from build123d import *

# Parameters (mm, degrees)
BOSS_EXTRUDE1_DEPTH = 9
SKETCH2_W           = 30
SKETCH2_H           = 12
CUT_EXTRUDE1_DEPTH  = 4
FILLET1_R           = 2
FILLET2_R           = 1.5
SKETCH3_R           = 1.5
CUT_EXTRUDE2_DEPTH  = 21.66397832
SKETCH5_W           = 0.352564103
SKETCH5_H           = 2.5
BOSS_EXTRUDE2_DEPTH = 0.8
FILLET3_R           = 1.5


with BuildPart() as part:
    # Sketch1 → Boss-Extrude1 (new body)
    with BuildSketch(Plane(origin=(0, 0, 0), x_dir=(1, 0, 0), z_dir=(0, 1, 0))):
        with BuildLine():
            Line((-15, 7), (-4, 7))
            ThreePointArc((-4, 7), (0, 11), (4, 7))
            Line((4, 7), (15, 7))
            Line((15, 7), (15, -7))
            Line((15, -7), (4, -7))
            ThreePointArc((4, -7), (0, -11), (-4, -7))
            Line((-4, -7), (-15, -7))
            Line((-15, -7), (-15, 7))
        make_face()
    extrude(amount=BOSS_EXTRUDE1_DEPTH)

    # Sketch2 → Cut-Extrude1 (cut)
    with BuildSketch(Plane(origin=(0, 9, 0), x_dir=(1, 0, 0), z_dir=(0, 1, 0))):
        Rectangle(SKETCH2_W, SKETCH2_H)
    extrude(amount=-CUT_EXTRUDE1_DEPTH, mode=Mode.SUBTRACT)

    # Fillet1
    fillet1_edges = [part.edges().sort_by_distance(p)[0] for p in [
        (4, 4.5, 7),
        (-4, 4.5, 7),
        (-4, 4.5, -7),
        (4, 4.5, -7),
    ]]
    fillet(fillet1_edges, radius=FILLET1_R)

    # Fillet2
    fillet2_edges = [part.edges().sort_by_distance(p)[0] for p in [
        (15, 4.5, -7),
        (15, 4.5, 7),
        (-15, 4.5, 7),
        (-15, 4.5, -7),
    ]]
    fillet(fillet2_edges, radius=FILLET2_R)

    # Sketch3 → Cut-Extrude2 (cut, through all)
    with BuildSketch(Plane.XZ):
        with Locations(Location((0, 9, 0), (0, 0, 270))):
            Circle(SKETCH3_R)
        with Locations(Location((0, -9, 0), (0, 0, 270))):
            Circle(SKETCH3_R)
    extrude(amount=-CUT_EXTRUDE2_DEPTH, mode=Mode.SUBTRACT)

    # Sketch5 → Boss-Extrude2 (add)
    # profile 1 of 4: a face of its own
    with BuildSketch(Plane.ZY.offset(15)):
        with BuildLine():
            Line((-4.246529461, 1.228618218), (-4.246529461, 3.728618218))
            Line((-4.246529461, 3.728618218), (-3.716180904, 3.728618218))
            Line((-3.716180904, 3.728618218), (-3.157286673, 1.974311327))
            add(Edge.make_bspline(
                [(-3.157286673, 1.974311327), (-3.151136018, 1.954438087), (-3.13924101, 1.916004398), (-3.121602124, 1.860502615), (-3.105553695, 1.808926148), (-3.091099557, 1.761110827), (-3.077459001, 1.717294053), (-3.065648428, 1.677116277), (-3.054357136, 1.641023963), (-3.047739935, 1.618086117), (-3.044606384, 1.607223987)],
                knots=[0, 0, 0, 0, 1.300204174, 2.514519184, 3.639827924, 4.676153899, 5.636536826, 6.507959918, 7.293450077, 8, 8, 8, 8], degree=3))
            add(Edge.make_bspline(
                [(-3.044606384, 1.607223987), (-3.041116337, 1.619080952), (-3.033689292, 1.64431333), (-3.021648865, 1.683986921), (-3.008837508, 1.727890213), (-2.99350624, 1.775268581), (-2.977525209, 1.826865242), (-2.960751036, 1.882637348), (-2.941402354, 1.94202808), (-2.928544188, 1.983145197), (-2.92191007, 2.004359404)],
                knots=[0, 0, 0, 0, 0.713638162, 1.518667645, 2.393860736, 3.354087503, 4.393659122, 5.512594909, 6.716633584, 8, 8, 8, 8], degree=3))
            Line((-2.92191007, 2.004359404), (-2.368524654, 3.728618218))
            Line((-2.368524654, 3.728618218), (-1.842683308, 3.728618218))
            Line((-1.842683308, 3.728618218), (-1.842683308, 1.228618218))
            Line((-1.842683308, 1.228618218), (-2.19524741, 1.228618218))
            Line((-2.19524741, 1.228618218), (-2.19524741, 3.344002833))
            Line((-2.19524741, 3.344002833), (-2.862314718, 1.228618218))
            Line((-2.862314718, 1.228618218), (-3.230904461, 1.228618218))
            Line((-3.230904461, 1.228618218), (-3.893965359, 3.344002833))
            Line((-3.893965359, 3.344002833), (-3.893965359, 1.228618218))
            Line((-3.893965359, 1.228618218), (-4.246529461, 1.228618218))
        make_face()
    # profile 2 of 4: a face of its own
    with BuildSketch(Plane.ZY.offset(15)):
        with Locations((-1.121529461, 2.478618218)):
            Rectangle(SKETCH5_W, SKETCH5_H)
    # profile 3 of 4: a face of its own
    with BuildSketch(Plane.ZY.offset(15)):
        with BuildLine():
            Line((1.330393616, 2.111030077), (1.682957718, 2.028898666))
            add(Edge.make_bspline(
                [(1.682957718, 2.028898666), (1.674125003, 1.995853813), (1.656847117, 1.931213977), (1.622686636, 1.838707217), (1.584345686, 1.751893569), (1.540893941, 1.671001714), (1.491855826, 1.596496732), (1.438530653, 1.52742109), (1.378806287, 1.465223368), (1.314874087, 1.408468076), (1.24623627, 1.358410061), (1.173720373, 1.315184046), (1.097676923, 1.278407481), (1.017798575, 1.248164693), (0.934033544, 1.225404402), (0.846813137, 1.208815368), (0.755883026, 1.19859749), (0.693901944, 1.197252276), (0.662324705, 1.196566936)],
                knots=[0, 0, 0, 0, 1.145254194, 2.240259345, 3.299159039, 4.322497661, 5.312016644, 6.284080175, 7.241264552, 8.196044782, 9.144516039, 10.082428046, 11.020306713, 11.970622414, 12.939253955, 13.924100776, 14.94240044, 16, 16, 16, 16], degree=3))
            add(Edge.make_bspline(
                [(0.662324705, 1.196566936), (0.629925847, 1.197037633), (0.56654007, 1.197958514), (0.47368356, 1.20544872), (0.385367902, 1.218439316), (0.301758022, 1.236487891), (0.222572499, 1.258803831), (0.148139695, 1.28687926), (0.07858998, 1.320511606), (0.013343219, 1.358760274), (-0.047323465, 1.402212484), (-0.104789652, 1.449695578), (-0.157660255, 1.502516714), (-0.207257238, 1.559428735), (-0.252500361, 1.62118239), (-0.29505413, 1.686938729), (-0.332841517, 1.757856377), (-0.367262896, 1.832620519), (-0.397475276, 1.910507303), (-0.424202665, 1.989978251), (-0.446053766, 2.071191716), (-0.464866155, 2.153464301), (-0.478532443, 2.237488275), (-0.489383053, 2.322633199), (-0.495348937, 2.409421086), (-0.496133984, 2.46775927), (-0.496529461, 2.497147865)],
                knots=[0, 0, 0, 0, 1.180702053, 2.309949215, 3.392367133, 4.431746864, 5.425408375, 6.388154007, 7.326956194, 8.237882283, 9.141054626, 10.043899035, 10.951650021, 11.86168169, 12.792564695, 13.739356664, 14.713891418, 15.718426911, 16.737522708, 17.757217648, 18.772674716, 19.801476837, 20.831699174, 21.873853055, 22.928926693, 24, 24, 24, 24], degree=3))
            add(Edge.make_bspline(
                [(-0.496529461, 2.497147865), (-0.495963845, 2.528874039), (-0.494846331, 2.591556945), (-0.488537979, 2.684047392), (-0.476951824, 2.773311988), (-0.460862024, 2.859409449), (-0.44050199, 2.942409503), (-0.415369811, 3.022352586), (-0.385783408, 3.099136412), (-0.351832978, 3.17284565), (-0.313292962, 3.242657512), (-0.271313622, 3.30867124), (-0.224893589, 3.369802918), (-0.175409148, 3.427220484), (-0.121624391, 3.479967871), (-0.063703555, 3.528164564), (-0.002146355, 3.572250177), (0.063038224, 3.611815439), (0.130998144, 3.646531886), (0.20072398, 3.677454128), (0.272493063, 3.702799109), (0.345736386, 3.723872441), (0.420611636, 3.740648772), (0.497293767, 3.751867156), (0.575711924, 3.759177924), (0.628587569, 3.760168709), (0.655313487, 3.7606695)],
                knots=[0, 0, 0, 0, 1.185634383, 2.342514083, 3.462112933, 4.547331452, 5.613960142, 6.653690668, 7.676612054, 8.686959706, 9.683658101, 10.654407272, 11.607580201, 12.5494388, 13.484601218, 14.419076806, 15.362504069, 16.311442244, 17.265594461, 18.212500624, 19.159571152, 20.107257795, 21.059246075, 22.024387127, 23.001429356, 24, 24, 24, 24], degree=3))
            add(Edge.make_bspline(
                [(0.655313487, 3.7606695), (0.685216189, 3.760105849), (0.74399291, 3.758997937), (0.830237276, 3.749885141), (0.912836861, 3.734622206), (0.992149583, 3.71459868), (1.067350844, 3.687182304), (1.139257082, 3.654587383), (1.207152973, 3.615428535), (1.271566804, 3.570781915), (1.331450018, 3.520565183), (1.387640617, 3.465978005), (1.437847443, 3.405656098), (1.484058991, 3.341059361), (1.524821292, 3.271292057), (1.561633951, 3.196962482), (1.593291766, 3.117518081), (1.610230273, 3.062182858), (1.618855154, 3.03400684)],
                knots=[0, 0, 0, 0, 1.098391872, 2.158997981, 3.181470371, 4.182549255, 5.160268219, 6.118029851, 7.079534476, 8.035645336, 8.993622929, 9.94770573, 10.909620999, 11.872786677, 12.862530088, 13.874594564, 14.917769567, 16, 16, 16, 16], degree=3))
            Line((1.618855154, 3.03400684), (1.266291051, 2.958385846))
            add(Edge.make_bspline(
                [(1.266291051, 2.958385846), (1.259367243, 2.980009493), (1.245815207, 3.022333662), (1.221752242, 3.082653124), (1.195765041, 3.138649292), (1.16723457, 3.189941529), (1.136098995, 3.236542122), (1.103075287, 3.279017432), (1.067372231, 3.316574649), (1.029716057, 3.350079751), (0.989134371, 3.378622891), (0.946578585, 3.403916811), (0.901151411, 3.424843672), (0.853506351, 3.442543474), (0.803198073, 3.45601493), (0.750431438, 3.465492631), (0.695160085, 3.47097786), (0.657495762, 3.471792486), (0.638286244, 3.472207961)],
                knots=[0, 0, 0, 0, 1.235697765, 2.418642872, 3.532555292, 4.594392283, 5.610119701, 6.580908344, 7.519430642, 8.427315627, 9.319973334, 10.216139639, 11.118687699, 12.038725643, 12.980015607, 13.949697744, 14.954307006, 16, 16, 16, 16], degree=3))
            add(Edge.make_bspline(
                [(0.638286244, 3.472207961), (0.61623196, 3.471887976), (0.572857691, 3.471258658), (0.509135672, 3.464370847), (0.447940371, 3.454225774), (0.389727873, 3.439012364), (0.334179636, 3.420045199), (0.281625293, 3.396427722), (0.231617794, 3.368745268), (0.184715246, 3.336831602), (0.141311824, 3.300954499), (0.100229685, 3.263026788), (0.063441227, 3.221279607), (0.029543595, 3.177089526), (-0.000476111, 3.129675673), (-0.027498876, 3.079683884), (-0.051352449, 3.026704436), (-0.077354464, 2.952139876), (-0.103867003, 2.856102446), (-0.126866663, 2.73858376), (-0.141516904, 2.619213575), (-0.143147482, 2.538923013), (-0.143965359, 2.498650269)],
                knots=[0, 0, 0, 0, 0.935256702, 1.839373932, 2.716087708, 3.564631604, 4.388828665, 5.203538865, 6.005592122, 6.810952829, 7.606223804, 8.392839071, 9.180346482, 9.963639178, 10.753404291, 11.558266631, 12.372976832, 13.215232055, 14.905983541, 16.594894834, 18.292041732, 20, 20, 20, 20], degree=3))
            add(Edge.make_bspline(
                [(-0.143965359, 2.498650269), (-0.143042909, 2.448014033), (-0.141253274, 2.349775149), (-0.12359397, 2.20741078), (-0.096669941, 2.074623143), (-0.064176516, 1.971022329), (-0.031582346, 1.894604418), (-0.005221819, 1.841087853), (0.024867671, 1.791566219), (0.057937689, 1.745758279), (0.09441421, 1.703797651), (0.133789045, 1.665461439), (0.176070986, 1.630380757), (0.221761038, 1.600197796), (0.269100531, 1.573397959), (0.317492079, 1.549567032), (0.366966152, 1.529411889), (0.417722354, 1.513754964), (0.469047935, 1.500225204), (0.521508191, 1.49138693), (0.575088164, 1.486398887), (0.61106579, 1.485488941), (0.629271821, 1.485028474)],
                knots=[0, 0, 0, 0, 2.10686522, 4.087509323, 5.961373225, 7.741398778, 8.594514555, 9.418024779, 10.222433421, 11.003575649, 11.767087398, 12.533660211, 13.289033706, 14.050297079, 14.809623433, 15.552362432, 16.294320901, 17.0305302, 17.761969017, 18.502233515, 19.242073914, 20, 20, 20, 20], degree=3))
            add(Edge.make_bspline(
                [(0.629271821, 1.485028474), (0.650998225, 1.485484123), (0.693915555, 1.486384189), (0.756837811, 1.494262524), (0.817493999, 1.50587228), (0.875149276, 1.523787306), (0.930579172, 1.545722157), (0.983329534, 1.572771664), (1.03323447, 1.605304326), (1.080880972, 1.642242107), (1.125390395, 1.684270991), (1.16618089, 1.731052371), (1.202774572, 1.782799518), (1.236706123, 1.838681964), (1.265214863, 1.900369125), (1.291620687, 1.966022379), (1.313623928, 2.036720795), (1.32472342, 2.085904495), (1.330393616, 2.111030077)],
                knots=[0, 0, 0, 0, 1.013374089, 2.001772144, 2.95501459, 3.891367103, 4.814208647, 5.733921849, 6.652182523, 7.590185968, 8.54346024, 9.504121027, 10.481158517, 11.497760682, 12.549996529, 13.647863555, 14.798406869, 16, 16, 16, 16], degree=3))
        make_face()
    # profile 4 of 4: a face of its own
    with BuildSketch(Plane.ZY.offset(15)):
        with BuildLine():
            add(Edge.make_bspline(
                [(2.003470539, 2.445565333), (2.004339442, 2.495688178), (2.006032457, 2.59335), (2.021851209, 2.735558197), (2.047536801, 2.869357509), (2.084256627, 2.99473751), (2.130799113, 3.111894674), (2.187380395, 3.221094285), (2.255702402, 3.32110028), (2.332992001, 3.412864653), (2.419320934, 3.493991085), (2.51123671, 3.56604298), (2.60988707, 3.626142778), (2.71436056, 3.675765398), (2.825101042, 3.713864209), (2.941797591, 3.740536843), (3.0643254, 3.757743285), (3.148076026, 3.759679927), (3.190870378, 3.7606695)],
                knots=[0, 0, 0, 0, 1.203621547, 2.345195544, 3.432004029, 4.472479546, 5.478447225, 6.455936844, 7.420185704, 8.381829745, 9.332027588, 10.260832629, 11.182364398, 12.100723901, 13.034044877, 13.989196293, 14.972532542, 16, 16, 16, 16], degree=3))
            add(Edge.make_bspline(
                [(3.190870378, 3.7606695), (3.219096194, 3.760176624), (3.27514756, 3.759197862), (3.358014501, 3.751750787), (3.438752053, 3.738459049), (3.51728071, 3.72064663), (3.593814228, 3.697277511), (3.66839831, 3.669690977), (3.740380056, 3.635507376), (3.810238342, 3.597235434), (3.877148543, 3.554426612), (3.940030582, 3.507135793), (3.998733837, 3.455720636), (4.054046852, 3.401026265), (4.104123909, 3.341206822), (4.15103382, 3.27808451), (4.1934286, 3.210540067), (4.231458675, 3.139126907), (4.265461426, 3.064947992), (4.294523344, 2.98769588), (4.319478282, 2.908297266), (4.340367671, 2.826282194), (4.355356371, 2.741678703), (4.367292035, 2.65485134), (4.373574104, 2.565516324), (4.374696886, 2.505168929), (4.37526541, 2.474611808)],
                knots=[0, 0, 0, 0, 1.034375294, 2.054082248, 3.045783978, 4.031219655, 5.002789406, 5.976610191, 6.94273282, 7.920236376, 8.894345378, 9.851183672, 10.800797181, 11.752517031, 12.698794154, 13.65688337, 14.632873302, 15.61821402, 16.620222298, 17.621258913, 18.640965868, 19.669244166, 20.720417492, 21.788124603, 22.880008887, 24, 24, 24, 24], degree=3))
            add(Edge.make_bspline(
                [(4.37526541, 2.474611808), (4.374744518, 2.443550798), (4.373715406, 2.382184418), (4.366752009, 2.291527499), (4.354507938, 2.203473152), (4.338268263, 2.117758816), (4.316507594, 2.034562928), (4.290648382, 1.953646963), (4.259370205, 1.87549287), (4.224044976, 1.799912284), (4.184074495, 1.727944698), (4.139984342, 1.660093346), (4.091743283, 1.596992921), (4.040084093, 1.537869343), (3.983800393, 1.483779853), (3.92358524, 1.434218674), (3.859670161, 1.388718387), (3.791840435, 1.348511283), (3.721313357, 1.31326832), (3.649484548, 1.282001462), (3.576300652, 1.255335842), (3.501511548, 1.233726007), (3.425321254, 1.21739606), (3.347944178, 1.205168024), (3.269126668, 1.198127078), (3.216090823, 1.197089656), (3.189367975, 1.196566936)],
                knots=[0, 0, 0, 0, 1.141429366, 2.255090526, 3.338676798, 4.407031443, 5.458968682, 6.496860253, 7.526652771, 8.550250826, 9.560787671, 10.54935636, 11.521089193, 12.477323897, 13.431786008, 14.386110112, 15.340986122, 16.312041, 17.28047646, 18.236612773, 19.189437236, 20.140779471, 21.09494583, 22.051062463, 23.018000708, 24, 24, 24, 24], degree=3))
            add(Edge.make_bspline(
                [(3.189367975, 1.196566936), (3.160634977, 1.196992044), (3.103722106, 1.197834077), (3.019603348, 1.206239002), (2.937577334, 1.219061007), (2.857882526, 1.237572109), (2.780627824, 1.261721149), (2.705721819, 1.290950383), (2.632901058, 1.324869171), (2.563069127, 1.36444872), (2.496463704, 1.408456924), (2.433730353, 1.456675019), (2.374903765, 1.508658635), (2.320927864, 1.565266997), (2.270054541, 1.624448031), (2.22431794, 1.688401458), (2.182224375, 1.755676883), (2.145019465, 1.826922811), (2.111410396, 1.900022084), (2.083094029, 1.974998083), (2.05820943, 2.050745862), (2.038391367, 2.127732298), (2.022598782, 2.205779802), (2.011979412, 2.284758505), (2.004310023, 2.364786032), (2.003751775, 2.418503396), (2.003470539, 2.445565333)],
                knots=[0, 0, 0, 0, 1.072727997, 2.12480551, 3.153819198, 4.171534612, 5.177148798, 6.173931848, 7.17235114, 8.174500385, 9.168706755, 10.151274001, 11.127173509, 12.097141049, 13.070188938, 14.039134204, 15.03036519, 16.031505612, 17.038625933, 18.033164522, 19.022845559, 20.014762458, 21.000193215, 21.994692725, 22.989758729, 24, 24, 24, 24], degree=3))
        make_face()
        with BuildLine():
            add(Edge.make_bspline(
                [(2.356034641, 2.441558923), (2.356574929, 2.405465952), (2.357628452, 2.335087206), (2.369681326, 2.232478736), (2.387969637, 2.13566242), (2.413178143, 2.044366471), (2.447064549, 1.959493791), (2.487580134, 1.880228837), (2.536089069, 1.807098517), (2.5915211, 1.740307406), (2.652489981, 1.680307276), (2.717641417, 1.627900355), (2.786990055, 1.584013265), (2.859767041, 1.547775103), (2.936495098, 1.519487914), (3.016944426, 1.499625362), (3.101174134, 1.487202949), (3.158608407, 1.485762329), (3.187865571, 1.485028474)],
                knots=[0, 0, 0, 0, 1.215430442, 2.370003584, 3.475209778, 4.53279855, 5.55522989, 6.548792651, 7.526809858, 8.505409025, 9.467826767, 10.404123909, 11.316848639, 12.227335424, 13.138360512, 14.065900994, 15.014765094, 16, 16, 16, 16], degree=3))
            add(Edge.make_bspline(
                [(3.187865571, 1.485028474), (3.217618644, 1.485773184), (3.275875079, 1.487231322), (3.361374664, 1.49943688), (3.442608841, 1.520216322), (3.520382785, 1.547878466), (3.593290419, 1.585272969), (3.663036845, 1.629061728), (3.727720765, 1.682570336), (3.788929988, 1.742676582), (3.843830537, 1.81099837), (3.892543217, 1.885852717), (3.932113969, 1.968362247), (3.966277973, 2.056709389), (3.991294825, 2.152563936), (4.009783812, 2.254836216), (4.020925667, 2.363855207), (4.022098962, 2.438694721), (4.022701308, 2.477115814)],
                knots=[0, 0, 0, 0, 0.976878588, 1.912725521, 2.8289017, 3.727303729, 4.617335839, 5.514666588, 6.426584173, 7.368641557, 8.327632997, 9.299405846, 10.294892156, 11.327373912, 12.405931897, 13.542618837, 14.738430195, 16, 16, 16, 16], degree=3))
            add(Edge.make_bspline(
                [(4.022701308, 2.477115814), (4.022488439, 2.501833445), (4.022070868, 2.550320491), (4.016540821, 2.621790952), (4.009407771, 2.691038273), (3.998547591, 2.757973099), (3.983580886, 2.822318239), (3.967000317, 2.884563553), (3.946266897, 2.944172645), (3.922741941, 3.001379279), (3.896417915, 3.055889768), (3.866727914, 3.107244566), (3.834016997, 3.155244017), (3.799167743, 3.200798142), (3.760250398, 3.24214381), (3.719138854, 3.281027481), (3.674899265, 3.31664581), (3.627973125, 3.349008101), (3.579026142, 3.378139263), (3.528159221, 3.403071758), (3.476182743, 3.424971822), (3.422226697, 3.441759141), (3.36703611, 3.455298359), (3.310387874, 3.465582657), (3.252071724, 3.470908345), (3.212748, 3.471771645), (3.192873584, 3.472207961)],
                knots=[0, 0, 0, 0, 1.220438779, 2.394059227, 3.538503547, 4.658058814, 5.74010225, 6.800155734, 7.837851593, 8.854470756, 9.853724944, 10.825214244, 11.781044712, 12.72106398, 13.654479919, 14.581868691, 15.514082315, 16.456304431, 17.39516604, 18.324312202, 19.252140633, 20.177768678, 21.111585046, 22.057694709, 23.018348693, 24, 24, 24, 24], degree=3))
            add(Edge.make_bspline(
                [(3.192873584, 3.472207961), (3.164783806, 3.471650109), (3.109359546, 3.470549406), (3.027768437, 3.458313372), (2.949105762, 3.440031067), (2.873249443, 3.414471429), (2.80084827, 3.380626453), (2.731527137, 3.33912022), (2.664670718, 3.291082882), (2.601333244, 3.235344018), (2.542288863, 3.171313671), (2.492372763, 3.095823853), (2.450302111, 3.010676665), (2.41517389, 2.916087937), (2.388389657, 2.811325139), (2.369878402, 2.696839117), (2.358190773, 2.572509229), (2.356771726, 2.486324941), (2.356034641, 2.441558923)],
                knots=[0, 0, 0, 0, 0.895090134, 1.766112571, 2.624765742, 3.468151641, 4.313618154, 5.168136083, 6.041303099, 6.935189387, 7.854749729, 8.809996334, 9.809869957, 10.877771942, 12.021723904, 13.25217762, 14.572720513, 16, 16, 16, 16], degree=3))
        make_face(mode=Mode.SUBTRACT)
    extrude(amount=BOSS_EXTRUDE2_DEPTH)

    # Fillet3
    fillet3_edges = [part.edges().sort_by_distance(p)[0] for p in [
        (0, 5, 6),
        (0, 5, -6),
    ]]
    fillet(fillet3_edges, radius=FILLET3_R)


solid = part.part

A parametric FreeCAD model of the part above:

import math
import FreeCAD as App
import Part
import Sketcher
from FreeCAD import Vector


def edges_at(feature, points):
    """Names of the edges that pass closest to the given points."""
    edges = feature.Shape.Edges
    near = lambda p: min(range(len(edges)), key=lambda i: edges[i].distToShape(Part.Vertex(*p))[0])
    return sorted({f"Edge{near(p) + 1}" for p in points})

doc = App.newDocument("Part")
body = doc.addObject("PartDesign::Body", "Body")

# Sketch on XZ plane
sketch1 = body.newObject("Sketcher::SketchObject", "Sketch")
sketch1.AttachmentSupport = (doc.getObject("XZ_Plane"), [""])
sketch1.MapMode = "FlatFace"
sketch1.addGeometry(Part.LineSegment(Vector(-4, -7, 0), Vector(-15, -7, 0)), False)
sketch1.addGeometry(Part.LineSegment(Vector(-15, -7, 0), Vector(-15, 7, 0)), False)
sketch1.addGeometry(Part.LineSegment(Vector(-15, 7, 0), Vector(-4, 7, 0)), False)
sketch1.addGeometry(Part.ArcOfCircle(Part.Circle(Vector(0, 7, 0), Vector(0, 0, 1), 4), math.radians(0), math.radians(180)), False)
sketch1.addGeometry(Part.LineSegment(Vector(4, 7, 0), Vector(15, 7, 0)), False)
sketch1.addGeometry(Part.LineSegment(Vector(15, 7, 0), Vector(15, -7, 0)), False)
sketch1.addGeometry(Part.LineSegment(Vector(15, -7, 0), Vector(4, -7, 0)), False)
sketch1.addGeometry(Part.ArcOfCircle(Part.Circle(Vector(0, -7, 0), Vector(0, 0, 1), 4), math.radians(180), math.radians(360)), False)
sketch1.addConstraint(Sketcher.Constraint("Coincident", 0, 2, 1, 1))
sketch1.addConstraint(Sketcher.Constraint("Coincident", 1, 2, 2, 1))
sketch1.addConstraint(Sketcher.Constraint("Coincident", 2, 2, 3, 2))
sketch1.addConstraint(Sketcher.Constraint("Coincident", 3, 1, 4, 1))
sketch1.addConstraint(Sketcher.Constraint("Coincident", 4, 2, 5, 1))
sketch1.addConstraint(Sketcher.Constraint("Coincident", 5, 2, 6, 1))
sketch1.addConstraint(Sketcher.Constraint("Coincident", 6, 2, 7, 2))
sketch1.addConstraint(Sketcher.Constraint("Coincident", 7, 1, 0, 1))
sketch1.addConstraint(Sketcher.Constraint("Horizontal", 0))
sketch1.addConstraint(Sketcher.Constraint("Vertical", 1))
sketch1.addConstraint(Sketcher.Constraint("Horizontal", 2))
sketch1.addConstraint(Sketcher.Constraint("Horizontal", 4))
sketch1.addConstraint(Sketcher.Constraint("Vertical", 5))
sketch1.addConstraint(Sketcher.Constraint("Horizontal", 6))
sketch1.addConstraint(Sketcher.Constraint("Equal", 3, 7))
sketch1.addConstraint(Sketcher.Constraint("Symmetric", 3, 3, 7, 3, -1, 1))
sketch1.addConstraint(Sketcher.Constraint("Symmetric", 0, 2, 4, 2, -1, 1))
sketch1.addConstraint(Sketcher.Constraint("Symmetric", 2, 2, 3, 1, -2))
sketch1.addConstraint(Sketcher.Constraint("Horizontal", 7, 3, 0, 2))
sketch1.addConstraint(Sketcher.Constraint("Horizontal", 0, 2, 5, 2))
sketch1.addConstraint(Sketcher.Constraint("Radius", 3, 4.0))
sketch1.addConstraint(Sketcher.Constraint("DistanceX", 0, 2, 0, 1, 11.0))
sketch1.addConstraint(Sketcher.Constraint("DistanceY", 1, 1, 1, 2, 14.0))
pad1 = body.newObject("PartDesign::Pad", "Pad")
pad1.Profile = sketch1
pad1.Length = 9
pad1.Reversed = True

# Sketch on XZ plane
sketch2 = body.newObject("Sketcher::SketchObject", "Sketch001")
sketch2.AttachmentSupport = (doc.getObject("XZ_Plane"), [""])
sketch2.MapMode = "FlatFace"
sketch2.AttachmentOffset = App.Placement(Vector(0, 0, -9), App.Rotation())
sketch2.addGeometry(Part.LineSegment(Vector(-15, -6, 0), Vector(-15, 6, 0)), False)
sketch2.addGeometry(Part.LineSegment(Vector(-15, 6, 0), Vector(15, 6, 0)), False)
sketch2.addGeometry(Part.LineSegment(Vector(15, 6, 0), Vector(15, -6, 0)), False)
sketch2.addGeometry(Part.LineSegment(Vector(15, -6, 0), Vector(-15, -6, 0)), False)
sketch2.addConstraint(Sketcher.Constraint("Coincident", 0, 2, 1, 1))
sketch2.addConstraint(Sketcher.Constraint("Coincident", 1, 2, 2, 1))
sketch2.addConstraint(Sketcher.Constraint("Coincident", 2, 2, 3, 1))
sketch2.addConstraint(Sketcher.Constraint("Coincident", 3, 2, 0, 1))
sketch2.addConstraint(Sketcher.Constraint("Vertical", 0))
sketch2.addConstraint(Sketcher.Constraint("Horizontal", 1))
sketch2.addConstraint(Sketcher.Constraint("Vertical", 2))
sketch2.addConstraint(Sketcher.Constraint("Horizontal", 3))
sketch2.addConstraint(Sketcher.Constraint("Symmetric", 0, 2, 2, 2, -1, 1))
sketch2.addConstraint(Sketcher.Constraint("DistanceX", 1, 1, 1, 2, 30.0))
sketch2.addConstraint(Sketcher.Constraint("DistanceY", 0, 1, 0, 2, 12.0))
pocket1 = body.newObject("PartDesign::Pocket", "Pocket")
pocket1.Profile = sketch2
pocket1.Length = 4
pocket1.Reversed = True
doc.recompute()

fillet = body.newObject("PartDesign::Fillet", "Fillet")
fillet.Base = (pocket1, edges_at(pocket1, [
    (4, 4.5, 7),
    (-4, 4.5, 7),
    (-4, 4.5, -7),
    (4, 4.5, -7),
]))
fillet.Radius = 2
doc.recompute()

fillet2 = body.newObject("PartDesign::Fillet", "Fillet001")
fillet2.Base = (fillet, edges_at(fillet, [
    (15, 4.5, -7),
    (15, 4.5, 7),
    (-15, 4.5, 7),
    (-15, 4.5, -7),
]))
fillet2.Radius = 1.5

# Sketch on XZ plane
sketch3 = body.newObject("Sketcher::SketchObject", "Sketch002")
sketch3.AttachmentSupport = (doc.getObject("XZ_Plane"), [""])
sketch3.MapMode = "FlatFace"
sketch3.addGeometry(Part.Circle(Vector(0, 9, 0), Vector(0, 0, 1), 1.5), False)
sketch3.addGeometry(Part.Circle(Vector(0, -9, 0), Vector(0, 0, 1), 1.5), False)
sketch3.addConstraint(Sketcher.Constraint("Equal", 0, 1))
sketch3.addConstraint(Sketcher.Constraint("Symmetric", 0, 3, 1, 3, -1, 1))
sketch3.addConstraint(Sketcher.Constraint("PointOnObject", 0, 3, -2))
sketch3.addConstraint(Sketcher.Constraint("Diameter", 0, 3.0))
sketch3.addConstraint(Sketcher.Constraint("DistanceY", -1, 1, 0, 3, 9.0))
pocket2 = body.newObject("PartDesign::Pocket", "Pocket001")
pocket2.Profile = sketch3
pocket2.Type = "ThroughAll"

# Sketch on YZ plane
sketch4 = body.newObject("Sketcher::SketchObject", "Sketch003")
sketch4.AttachmentSupport = (doc.getObject("YZ_Plane"), [""])
sketch4.MapMode = "FlatFace"
sketch4.AttachmentOffset = App.Placement(Vector(0, 0, -15), App.Rotation())
sketch4.addGeometry(Part.LineSegment(Vector(3.728618, -4.246529, 0), Vector(1.228618, -4.246529, 0)), False)
sketch4.addGeometry(Part.LineSegment(Vector(1.228618, -4.246529, 0), Vector(1.228618, -3.893965, 0)), False)
sketch4.addGeometry(Part.LineSegment(Vector(1.228618, -3.893965, 0), Vector(3.344003, -3.893965, 0)), False)
sketch4.addGeometry(Part.LineSegment(Vector(3.344003, -3.893965, 0), Vector(1.228618, -3.230904, 0)), False)
sketch4.addGeometry(Part.LineSegment(Vector(1.228618, -3.230904, 0), Vector(1.228618, -2.862315, 0)), False)
sketch4.addGeometry(Part.LineSegment(Vector(1.228618, -2.862315, 0), Vector(3.344003, -2.195247, 0)), False)
sketch4.addGeometry(Part.LineSegment(Vector(3.344003, -2.195247, 0), Vector(1.228618, -2.195247, 0)), False)
sketch4.addGeometry(Part.LineSegment(Vector(1.228618, -2.195247, 0), Vector(1.228618, -1.842683, 0)), False)
sketch4.addGeometry(Part.LineSegment(Vector(1.228618, -1.842683, 0), Vector(3.728618, -1.842683, 0)), False)
sketch4.addGeometry(Part.LineSegment(Vector(3.728618, -1.842683, 0), Vector(3.728618, -2.368525, 0)), False)
sketch4.addGeometry(Part.LineSegment(Vector(3.728618, -2.368525, 0), Vector(2.004359, -2.92191, 0)), False)
sketch4.addGeometry(Part.BSplineCurve([Vector(1.607224, -3.044606, 0), Vector(1.619081, -3.041116, 0), Vector(1.644313, -3.033689, 0), Vector(1.683987, -3.021649, 0), Vector(1.72789, -3.008838, 0), Vector(1.775269, -2.993506, 0), Vector(1.826865, -2.977525, 0), Vector(1.882637, -2.960751, 0), Vector(1.942028, -2.941402, 0), Vector(1.983145, -2.928544, 0), Vector(2.004359, -2.92191, 0)], [4, 1, 1, 1, 1, 1, 1, 1, 4], [0, 0.713638162, 1.518667645, 2.393860736, 3.354087503, 4.393659122, 5.512594909, 6.716633584, 8], False, 3, [1, 1, 1, 1, 1, 1, 1, 1, 1, 1, 1], False), False)
sketch4.addGeometry(Part.BSplineCurve([Vector(1.974311, -3.157287, 0), Vector(1.954438, -3.151136, 0), Vector(1.916004, -3.139241, 0), Vector(1.860503, -3.121602, 0), Vector(1.808926, -3.105554, 0), Vector(1.761111, -3.0911, 0), Vector(1.717294, -3.077459, 0), Vector(1.677116, -3.065648, 0), Vector(1.641024, -3.054357, 0), Vector(1.618086, -3.04774, 0), Vector(1.607224, -3.044606, 0)], [4, 1, 1, 1, 1, 1, 1, 1, 4], [0, 1.300204174, 2.514519184, 3.639827924, 4.676153899, 5.636536826, 6.507959918, 7.293450077, 8], False, 3, [1, 1, 1, 1, 1, 1, 1, 1, 1, 1, 1], False), False)
sketch4.addGeometry(Part.LineSegment(Vector(1.974311, -3.157287, 0), Vector(3.728618, -3.716181, 0)), False)
sketch4.addGeometry(Part.LineSegment(Vector(3.728618, -3.716181, 0), Vector(3.728618, -4.246529, 0)), False)
sketch4.addGeometry(Part.LineSegment(Vector(3.728618, -1.297812, 0), Vector(1.228618, -1.297812, 0)), False)
sketch4.addGeometry(Part.LineSegment(Vector(1.228618, -1.297812, 0), Vector(1.228618, -0.945247, 0)), False)
sketch4.addGeometry(Part.LineSegment(Vector(1.228618, -0.945247, 0), Vector(3.728618, -0.945247, 0)), False)
sketch4.addGeometry(Part.LineSegment(Vector(3.728618, -0.945247, 0), Vector(3.728618, -1.297812, 0)), False)
sketch4.addGeometry(Part.LineSegment(Vector(2.028899, 1.682958, 0), Vector(2.11103, 1.330394, 0)), False)
sketch4.addGeometry(Part.BSplineCurve([Vector(1.485028, 0.629272, 0), Vector(1.485484, 0.650998, 0), Vector(1.486384, 0.693916, 0), Vector(1.494263, 0.756838, 0), Vector(1.505872, 0.817494, 0), Vector(1.523787, 0.875149, 0), Vector(1.545722, 0.930579, 0), Vector(1.572772, 0.98333, 0), Vector(1.605304, 1.033234, 0), Vector(1.642242, 1.080881, 0), Vector(1.684271, 1.12539, 0), Vector(1.731052, 1.166181, 0), Vector(1.7828, 1.202775, 0), Vector(1.838682, 1.236706, 0), Vector(1.900369, 1.265215, 0), Vector(1.966022, 1.291621, 0), Vector(2.036721, 1.313624, 0), Vector(2.085904, 1.324723, 0), Vector(2.11103, 1.330394, 0)], [4, 1, 1, 1, 1, 1, 1, 1, 1, 1, 1, 1, 1, 1, 1, 1, 4], [0, 1.013374089, 2.001772144, 2.95501459, 3.891367103, 4.814208647, 5.733921849, 6.652182523, 7.590185968, 8.54346024, 9.504121027, 10.481158517, 11.497760682, 12.549996529, 13.647863555, 14.798406869, 16], False, 3, [1, 1, 1, 1, 1, 1, 1, 1, 1, 1, 1, 1, 1, 1, 1, 1, 1, 1, 1], False), False)
sketch4.addGeometry(Part.BSplineCurve([Vector(2.49865, -0.143965, 0), Vector(2.448014, -0.143043, 0), Vector(2.349775, -0.141253, 0), Vector(2.207411, -0.123594, 0), Vector(2.074623, -0.09667, 0), Vector(1.971022, -0.064177, 0), Vector(1.894604, -0.031582, 0), Vector(1.841088, -0.005222, 0), Vector(1.791566, 0.024868, 0), Vector(1.745758, 0.057938, 0), Vector(1.703798, 0.094414, 0), Vector(1.665461, 0.133789, 0), Vector(1.630381, 0.176071, 0), Vector(1.600198, 0.221761, 0), Vector(1.573398, 0.269101, 0), Vector(1.549567, 0.317492, 0), Vector(1.529412, 0.366966, 0), Vector(1.513755, 0.417722, 0), Vector(1.500225, 0.469048, 0), Vector(1.491387, 0.521508, 0), Vector(1.486399, 0.575088, 0), Vector(1.485489, 0.611066, 0), Vector(1.485028, 0.629272, 0)], [4, 1, 1, 1, 1, 1, 1, 1, 1, 1, 1, 1, 1, 1, 1, 1, 1, 1, 1, 1, 4], [0, 2.10686522, 4.087509323, 5.961373225, 7.741398778, 8.594514555, 9.418024779, 10.222433421, 11.003575649, 11.767087398, 12.533660211, 13.289033706, 14.050297079, 14.809623433, 15.552362432, 16.294320901, 17.0305302, 17.761969017, 18.502233515, 19.242073914, 20], False, 3, [1, 1, 1, 1, 1, 1, 1, 1, 1, 1, 1, 1, 1, 1, 1, 1, 1, 1, 1, 1, 1, 1, 1], False), False)
sketch4.addGeometry(Part.BSplineCurve([Vector(3.472208, 0.638286, 0), Vector(3.471888, 0.616232, 0), Vector(3.471259, 0.572858, 0), Vector(3.464371, 0.509136, 0), Vector(3.454226, 0.44794, 0), Vector(3.439012, 0.389728, 0), Vector(3.420045, 0.33418, 0), Vector(3.396428, 0.281625, 0), Vector(3.368745, 0.231618, 0), Vector(3.336832, 0.184715, 0), Vector(3.300954, 0.141312, 0), Vector(3.263027, 0.10023, 0), Vector(3.22128, 0.063441, 0), Vector(3.17709, 0.029544, 0), Vector(3.129676, -0.000476, 0), Vector(3.079684, -0.027499, 0), Vector(3.026704, -0.051352, 0), Vector(2.95214, -0.077354, 0), Vector(2.856102, -0.103867, 0), Vector(2.738584, -0.126867, 0), Vector(2.619214, -0.141517, 0), Vector(2.538923, -0.143147, 0), Vector(2.49865, -0.143965, 0)], [4, 1, 1, 1, 1, 1, 1, 1, 1, 1, 1, 1, 1, 1, 1, 1, 1, 1, 1, 1, 4], [0, 0.935256702, 1.839373932, 2.716087708, 3.564631604, 4.388828665, 5.203538865, 6.005592122, 6.810952829, 7.606223804, 8.392839071, 9.180346482, 9.963639178, 10.753404291, 11.558266631, 12.372976832, 13.215232055, 14.905983541, 16.594894834, 18.292041732, 20], False, 3, [1, 1, 1, 1, 1, 1, 1, 1, 1, 1, 1, 1, 1, 1, 1, 1, 1, 1, 1, 1, 1, 1, 1], False), False)
sketch4.addGeometry(Part.BSplineCurve([Vector(2.958386, 1.266291, 0), Vector(2.980009, 1.259367, 0), Vector(3.022334, 1.245815, 0), Vector(3.082653, 1.221752, 0), Vector(3.138649, 1.195765, 0), Vector(3.189942, 1.167235, 0), Vector(3.236542, 1.136099, 0), Vector(3.279017, 1.103075, 0), Vector(3.316575, 1.067372, 0), Vector(3.35008, 1.029716, 0), Vector(3.378623, 0.989134, 0), Vector(3.403917, 0.946579, 0), Vector(3.424844, 0.901151, 0), Vector(3.442543, 0.853506, 0), Vector(3.456015, 0.803198, 0), Vector(3.465493, 0.750431, 0), Vector(3.470978, 0.69516, 0), Vector(3.471792, 0.657496, 0), Vector(3.472208, 0.638286, 0)], [4, 1, 1, 1, 1, 1, 1, 1, 1, 1, 1, 1, 1, 1, 1, 1, 4], [0, 1.235697765, 2.418642872, 3.532555292, 4.594392283, 5.610119701, 6.580908344, 7.519430642, 8.427315627, 9.319973334, 10.216139639, 11.118687699, 12.038725643, 12.980015607, 13.949697744, 14.954307006, 16], False, 3, [1, 1, 1, 1, 1, 1, 1, 1, 1, 1, 1, 1, 1, 1, 1, 1, 1, 1, 1], False), False)
sketch4.addGeometry(Part.LineSegment(Vector(2.958386, 1.266291, 0), Vector(3.034007, 1.618855, 0)), False)
sketch4.addGeometry(Part.BSplineCurve([Vector(3.76067, 0.655313, 0), Vector(3.760106, 0.685216, 0), Vector(3.758998, 0.743993, 0), Vector(3.749885, 0.830237, 0), Vector(3.734622, 0.912837, 0), Vector(3.714599, 0.99215, 0), Vector(3.687182, 1.067351, 0), Vector(3.654587, 1.139257, 0), Vector(3.615429, 1.207153, 0), Vector(3.570782, 1.271567, 0), Vector(3.520565, 1.33145, 0), Vector(3.465978, 1.387641, 0), Vector(3.405656, 1.437847, 0), Vector(3.341059, 1.484059, 0), Vector(3.271292, 1.524821, 0), Vector(3.196962, 1.561634, 0), Vector(3.117518, 1.593292, 0), Vector(3.062183, 1.61023, 0), Vector(3.034007, 1.618855, 0)], [4, 1, 1, 1, 1, 1, 1, 1, 1, 1, 1, 1, 1, 1, 1, 1, 4], [0, 1.098391872, 2.158997981, 3.181470371, 4.182549255, 5.160268219, 6.118029851, 7.079534476, 8.035645336, 8.993622929, 9.94770573, 10.909620999, 11.872786677, 12.862530088, 13.874594564, 14.917769567, 16], False, 3, [1, 1, 1, 1, 1, 1, 1, 1, 1, 1, 1, 1, 1, 1, 1, 1, 1, 1, 1], False), False)
sketch4.addGeometry(Part.BSplineCurve([Vector(2.497148, -0.496529, 0), Vector(2.528874, -0.495964, 0), Vector(2.591557, -0.494846, 0), Vector(2.684047, -0.488538, 0), Vector(2.773312, -0.476952, 0), Vector(2.859409, -0.460862, 0), Vector(2.94241, -0.440502, 0), Vector(3.022353, -0.41537, 0), Vector(3.099136, -0.385783, 0), Vector(3.172846, -0.351833, 0), Vector(3.242658, -0.313293, 0), Vector(3.308671, -0.271314, 0), Vector(3.369803, -0.224894, 0), Vector(3.42722, -0.175409, 0), Vector(3.479968, -0.121624, 0), Vector(3.528165, -0.063704, 0), Vector(3.57225, -0.002146, 0), Vector(3.611815, 0.063038, 0), Vector(3.646532, 0.130998, 0), Vector(3.677454, 0.200724, 0), Vector(3.702799, 0.272493, 0), Vector(3.723872, 0.345736, 0), Vector(3.740649, 0.420612, 0), Vector(3.751867, 0.497294, 0), Vector(3.759178, 0.575712, 0), Vector(3.760169, 0.628588, 0), Vector(3.76067, 0.655313, 0)], [4, 1, 1, 1, 1, 1, 1, 1, 1, 1, 1, 1, 1, 1, 1, 1, 1, 1, 1, 1, 1, 1, 1, 1, 4], [0, 1.185634383, 2.342514083, 3.462112933, 4.547331452, 5.613960142, 6.653690668, 7.676612054, 8.686959706, 9.683658101, 10.654407272, 11.607580201, 12.5494388, 13.484601218, 14.419076806, 15.362504069, 16.311442244, 17.265594461, 18.212500624, 19.159571152, 20.107257795, 21.059246075, 22.024387127, 23.001429356, 24], False, 3, [1, 1, 1, 1, 1, 1, 1, 1, 1, 1, 1, 1, 1, 1, 1, 1, 1, 1, 1, 1, 1, 1, 1, 1, 1, 1, 1], False), False)
sketch4.addGeometry(Part.BSplineCurve([Vector(1.196567, 0.662325, 0), Vector(1.197038, 0.629926, 0), Vector(1.197959, 0.56654, 0), Vector(1.205449, 0.473684, 0), Vector(1.218439, 0.385368, 0), Vector(1.236488, 0.301758, 0), Vector(1.258804, 0.222572, 0), Vector(1.286879, 0.14814, 0), Vector(1.320512, 0.07859, 0), Vector(1.35876, 0.013343, 0), Vector(1.402212, -0.047323, 0), Vector(1.449696, -0.10479, 0), Vector(1.502517, -0.15766, 0), Vector(1.559429, -0.207257, 0), Vector(1.621182, -0.2525, 0), Vector(1.686939, -0.295054, 0), Vector(1.757856, -0.332842, 0), Vector(1.832621, -0.367263, 0), Vector(1.910507, -0.397475, 0), Vector(1.989978, -0.424203, 0), Vector(2.071192, -0.446054, 0), Vector(2.153464, -0.464866, 0), Vector(2.237488, -0.478532, 0), Vector(2.322633, -0.489383, 0), Vector(2.409421, -0.495349, 0), Vector(2.467759, -0.496134, 0), Vector(2.497148, -0.496529, 0)], [4, 1, 1, 1, 1, 1, 1, 1, 1, 1, 1, 1, 1, 1, 1, 1, 1, 1, 1, 1, 1, 1, 1, 1, 4], [0, 1.180702053, 2.309949215, 3.392367133, 4.431746864, 5.425408375, 6.388154007, 7.326956194, 8.237882283, 9.141054626, 10.043899035, 10.951650021, 11.86168169, 12.792564695, 13.739356664, 14.713891418, 15.718426911, 16.737522708, 17.757217648, 18.772674716, 19.801476837, 20.831699174, 21.873853055, 22.928926693, 24], False, 3, [1, 1, 1, 1, 1, 1, 1, 1, 1, 1, 1, 1, 1, 1, 1, 1, 1, 1, 1, 1, 1, 1, 1, 1, 1, 1, 1], False), False)
sketch4.addGeometry(Part.BSplineCurve([Vector(2.028899, 1.682958, 0), Vector(1.995854, 1.674125, 0), Vector(1.931214, 1.656847, 0), Vector(1.838707, 1.622687, 0), Vector(1.751894, 1.584346, 0), Vector(1.671002, 1.540894, 0), Vector(1.596497, 1.491856, 0), Vector(1.527421, 1.438531, 0), Vector(1.465223, 1.378806, 0), Vector(1.408468, 1.314874, 0), Vector(1.35841, 1.246236, 0), Vector(1.315184, 1.17372, 0), Vector(1.278407, 1.097677, 0), Vector(1.248165, 1.017799, 0), Vector(1.225404, 0.934034, 0), Vector(1.208815, 0.846813, 0), Vector(1.198597, 0.755883, 0), Vector(1.197252, 0.693902, 0), Vector(1.196567, 0.662325, 0)], [4, 1, 1, 1, 1, 1, 1, 1, 1, 1, 1, 1, 1, 1, 1, 1, 4], [0, 1.145254194, 2.240259345, 3.299159039, 4.322497661, 5.312016644, 6.284080175, 7.241264552, 8.196044782, 9.144516039, 10.082428046, 11.020306713, 11.970622414, 12.939253955, 13.924100776, 14.94240044, 16], False, 3, [1, 1, 1, 1, 1, 1, 1, 1, 1, 1, 1, 1, 1, 1, 1, 1, 1, 1, 1], False), False)
sketch4.addGeometry(Part.BSplineCurve([Vector(2.445565, 2.003471, 0), Vector(2.495688, 2.004339, 0), Vector(2.59335, 2.006032, 0), Vector(2.735558, 2.021851, 0), Vector(2.869358, 2.047537, 0), Vector(2.994738, 2.084257, 0), Vector(3.111895, 2.130799, 0), Vector(3.221094, 2.18738, 0), Vector(3.3211, 2.255702, 0), Vector(3.412865, 2.332992, 0), Vector(3.493991, 2.419321, 0), Vector(3.566043, 2.511237, 0), Vector(3.626143, 2.609887, 0), Vector(3.675765, 2.714361, 0), Vector(3.713864, 2.825101, 0), Vector(3.740537, 2.941798, 0), Vector(3.757743, 3.064325, 0), Vector(3.75968, 3.148076, 0), Vector(3.76067, 3.19087, 0)], [4, 1, 1, 1, 1, 1, 1, 1, 1, 1, 1, 1, 1, 1, 1, 1, 4], [0, 1.203621547, 2.345195544, 3.432004029, 4.472479546, 5.478447225, 6.455936844, 7.420185704, 8.381829745, 9.332027588, 10.260832629, 11.182364398, 12.100723901, 13.034044877, 13.989196293, 14.972532542, 16], False, 3, [1, 1, 1, 1, 1, 1, 1, 1, 1, 1, 1, 1, 1, 1, 1, 1, 1, 1, 1], False), False)
sketch4.addGeometry(Part.BSplineCurve([Vector(1.196567, 3.189368, 0), Vector(1.196992, 3.160635, 0), Vector(1.197834, 3.103722, 0), Vector(1.206239, 3.019603, 0), Vector(1.219061, 2.937577, 0), Vector(1.237572, 2.857883, 0), Vector(1.261721, 2.780628, 0), Vector(1.29095, 2.705722, 0), Vector(1.324869, 2.632901, 0), Vector(1.364449, 2.563069, 0), Vector(1.408457, 2.496464, 0), Vector(1.456675, 2.43373, 0), Vector(1.508659, 2.374904, 0), Vector(1.565267, 2.320928, 0), Vector(1.624448, 2.270055, 0), Vector(1.688401, 2.224318, 0), Vector(1.755677, 2.182224, 0), Vector(1.826923, 2.145019, 0), Vector(1.900022, 2.11141, 0), Vector(1.974998, 2.083094, 0), Vector(2.050746, 2.058209, 0), Vector(2.127732, 2.038391, 0), Vector(2.20578, 2.022599, 0), Vector(2.284759, 2.011979, 0), Vector(2.364786, 2.00431, 0), Vector(2.418503, 2.003752, 0), Vector(2.445565, 2.003471, 0)], [4, 1, 1, 1, 1, 1, 1, 1, 1, 1, 1, 1, 1, 1, 1, 1, 1, 1, 1, 1, 1, 1, 1, 1, 4], [0, 1.072727997, 2.12480551, 3.153819198, 4.171534612, 5.177148798, 6.173931848, 7.17235114, 8.174500385, 9.168706755, 10.151274001, 11.127173509, 12.097141049, 13.070188938, 14.039134204, 15.03036519, 16.031505612, 17.038625933, 18.033164522, 19.022845559, 20.014762458, 21.000193215, 21.994692725, 22.989758729, 24], False, 3, [1, 1, 1, 1, 1, 1, 1, 1, 1, 1, 1, 1, 1, 1, 1, 1, 1, 1, 1, 1, 1, 1, 1, 1, 1, 1, 1], False), False)
sketch4.addGeometry(Part.BSplineCurve([Vector(2.474612, 4.375265, 0), Vector(2.443551, 4.374745, 0), Vector(2.382184, 4.373715, 0), Vector(2.291527, 4.366752, 0), Vector(2.203473, 4.354508, 0), Vector(2.117759, 4.338268, 0), Vector(2.034563, 4.316508, 0), Vector(1.953647, 4.290648, 0), Vector(1.875493, 4.25937, 0), Vector(1.799912, 4.224045, 0), Vector(1.727945, 4.184074, 0), Vector(1.660093, 4.139984, 0), Vector(1.596993, 4.091743, 0), Vector(1.537869, 4.040084, 0), Vector(1.48378, 3.9838, 0), Vector(1.434219, 3.923585, 0), Vector(1.388718, 3.85967, 0), Vector(1.348511, 3.79184, 0), Vector(1.313268, 3.721313, 0), Vector(1.282001, 3.649485, 0), Vector(1.255336, 3.576301, 0), Vector(1.233726, 3.501512, 0), Vector(1.217396, 3.425321, 0), Vector(1.205168, 3.347944, 0), Vector(1.198127, 3.269127, 0), Vector(1.19709, 3.216091, 0), Vector(1.196567, 3.189368, 0)], [4, 1, 1, 1, 1, 1, 1, 1, 1, 1, 1, 1, 1, 1, 1, 1, 1, 1, 1, 1, 1, 1, 1, 1, 4], [0, 1.141429366, 2.255090526, 3.338676798, 4.407031443, 5.458968682, 6.496860253, 7.526652771, 8.550250826, 9.560787671, 10.54935636, 11.521089193, 12.477323897, 13.431786008, 14.386110112, 15.340986122, 16.312041, 17.28047646, 18.236612773, 19.189437236, 20.140779471, 21.09494583, 22.051062463, 23.018000708, 24], False, 3, [1, 1, 1, 1, 1, 1, 1, 1, 1, 1, 1, 1, 1, 1, 1, 1, 1, 1, 1, 1, 1, 1, 1, 1, 1, 1, 1], False), False)
sketch4.addGeometry(Part.BSplineCurve([Vector(3.76067, 3.19087, 0), Vector(3.760177, 3.219096, 0), Vector(3.759198, 3.275148, 0), Vector(3.751751, 3.358015, 0), Vector(3.738459, 3.438752, 0), Vector(3.720647, 3.517281, 0), Vector(3.697278, 3.593814, 0), Vector(3.669691, 3.668398, 0), Vector(3.635507, 3.74038, 0), Vector(3.597235, 3.810238, 0), Vector(3.554427, 3.877149, 0), Vector(3.507136, 3.940031, 0), Vector(3.455721, 3.998734, 0), Vector(3.401026, 4.054047, 0), Vector(3.341207, 4.104124, 0), Vector(3.278085, 4.151034, 0), Vector(3.21054, 4.193429, 0), Vector(3.139127, 4.231459, 0), Vector(3.064948, 4.265461, 0), Vector(2.987696, 4.294523, 0), Vector(2.908297, 4.319478, 0), Vector(2.826282, 4.340368, 0), Vector(2.741679, 4.355356, 0), Vector(2.654851, 4.367292, 0), Vector(2.565516, 4.373574, 0), Vector(2.505169, 4.374697, 0), Vector(2.474612, 4.375265, 0)], [4, 1, 1, 1, 1, 1, 1, 1, 1, 1, 1, 1, 1, 1, 1, 1, 1, 1, 1, 1, 1, 1, 1, 1, 4], [0, 1.034375294, 2.054082248, 3.045783978, 4.031219655, 5.002789406, 5.976610191, 6.94273282, 7.920236376, 8.894345378, 9.851183672, 10.800797181, 11.752517031, 12.698794154, 13.65688337, 14.632873302, 15.61821402, 16.620222298, 17.621258913, 18.640965868, 19.669244166, 20.720417492, 21.788124603, 22.880008887, 24], False, 3, [1, 1, 1, 1, 1, 1, 1, 1, 1, 1, 1, 1, 1, 1, 1, 1, 1, 1, 1, 1, 1, 1, 1, 1, 1, 1, 1], False), False)
sketch4.addGeometry(Part.BSplineCurve([Vector(3.472208, 3.192874, 0), Vector(3.47165, 3.164784, 0), Vector(3.470549, 3.10936, 0), Vector(3.458313, 3.027768, 0), Vector(3.440031, 2.949106, 0), Vector(3.414471, 2.873249, 0), Vector(3.380626, 2.800848, 0), Vector(3.33912, 2.731527, 0), Vector(3.291083, 2.664671, 0), Vector(3.235344, 2.601333, 0), Vector(3.171314, 2.542289, 0), Vector(3.095824, 2.492373, 0), Vector(3.010677, 2.450302, 0), Vector(2.916088, 2.415174, 0), Vector(2.811325, 2.38839, 0), Vector(2.696839, 2.369878, 0), Vector(2.572509, 2.358191, 0), Vector(2.486325, 2.356772, 0), Vector(2.441559, 2.356035, 0)], [4, 1, 1, 1, 1, 1, 1, 1, 1, 1, 1, 1, 1, 1, 1, 1, 4], [0, 0.895090134, 1.766112571, 2.624765742, 3.468151641, 4.313618154, 5.168136083, 6.041303099, 6.935189387, 7.854749729, 8.809996334, 9.809869957, 10.877771942, 12.021723904, 13.25217762, 14.572720513, 16], False, 3, [1, 1, 1, 1, 1, 1, 1, 1, 1, 1, 1, 1, 1, 1, 1, 1, 1, 1, 1], False), False)
sketch4.addGeometry(Part.BSplineCurve([Vector(2.477116, 4.022701, 0), Vector(2.501833, 4.022488, 0), Vector(2.55032, 4.022071, 0), Vector(2.621791, 4.016541, 0), Vector(2.691038, 4.009408, 0), Vector(2.757973, 3.998548, 0), Vector(2.822318, 3.983581, 0), Vector(2.884564, 3.967, 0), Vector(2.944173, 3.946267, 0), Vector(3.001379, 3.922742, 0), Vector(3.05589, 3.896418, 0), Vector(3.107245, 3.866728, 0), Vector(3.155244, 3.834017, 0), Vector(3.200798, 3.799168, 0), Vector(3.242144, 3.76025, 0), Vector(3.281027, 3.719139, 0), Vector(3.316646, 3.674899, 0), Vector(3.349008, 3.627973, 0), Vector(3.378139, 3.579026, 0), Vector(3.403072, 3.528159, 0), Vector(3.424972, 3.476183, 0), Vector(3.441759, 3.422227, 0), Vector(3.455298, 3.367036, 0), Vector(3.465583, 3.310388, 0), Vector(3.470908, 3.252072, 0), Vector(3.471772, 3.212748, 0), Vector(3.472208, 3.192874, 0)], [4, 1, 1, 1, 1, 1, 1, 1, 1, 1, 1, 1, 1, 1, 1, 1, 1, 1, 1, 1, 1, 1, 1, 1, 4], [0, 1.220438779, 2.394059227, 3.538503547, 4.658058814, 5.74010225, 6.800155734, 7.837851593, 8.854470756, 9.853724944, 10.825214244, 11.781044712, 12.72106398, 13.654479919, 14.581868691, 15.514082315, 16.456304431, 17.39516604, 18.324312202, 19.252140633, 20.177768678, 21.111585046, 22.057694709, 23.018348693, 24], False, 3, [1, 1, 1, 1, 1, 1, 1, 1, 1, 1, 1, 1, 1, 1, 1, 1, 1, 1, 1, 1, 1, 1, 1, 1, 1, 1, 1], False), False)
sketch4.addGeometry(Part.BSplineCurve([Vector(1.485028, 3.187866, 0), Vector(1.485773, 3.217619, 0), Vector(1.487231, 3.275875, 0), Vector(1.499437, 3.361375, 0), Vector(1.520216, 3.442609, 0), Vector(1.547878, 3.520383, 0), Vector(1.585273, 3.59329, 0), Vector(1.629062, 3.663037, 0), Vector(1.68257, 3.727721, 0), Vector(1.742677, 3.78893, 0), Vector(1.810998, 3.843831, 0), Vector(1.885853, 3.892543, 0), Vector(1.968362, 3.932114, 0), Vector(2.056709, 3.966278, 0), Vector(2.152564, 3.991295, 0), Vector(2.254836, 4.009784, 0), Vector(2.363855, 4.020926, 0), Vector(2.438695, 4.022099, 0), Vector(2.477116, 4.022701, 0)], [4, 1, 1, 1, 1, 1, 1, 1, 1, 1, 1, 1, 1, 1, 1, 1, 4], [0, 0.976878588, 1.912725521, 2.8289017, 3.727303729, 4.617335839, 5.514666588, 6.426584173, 7.368641557, 8.327632997, 9.299405846, 10.294892156, 11.327373912, 12.405931897, 13.542618837, 14.738430195, 16], False, 3, [1, 1, 1, 1, 1, 1, 1, 1, 1, 1, 1, 1, 1, 1, 1, 1, 1, 1, 1], False), False)
sketch4.addGeometry(Part.BSplineCurve([Vector(2.441559, 2.356035, 0), Vector(2.405466, 2.356575, 0), Vector(2.335087, 2.357628, 0), Vector(2.232479, 2.369681, 0), Vector(2.135662, 2.38797, 0), Vector(2.044366, 2.413178, 0), Vector(1.959494, 2.447065, 0), Vector(1.880229, 2.48758, 0), Vector(1.807099, 2.536089, 0), Vector(1.740307, 2.591521, 0), Vector(1.680307, 2.65249, 0), Vector(1.6279, 2.717641, 0), Vector(1.584013, 2.78699, 0), Vector(1.547775, 2.859767, 0), Vector(1.519488, 2.936495, 0), Vector(1.499625, 3.016944, 0), Vector(1.487203, 3.101174, 0), Vector(1.485762, 3.158608, 0), Vector(1.485028, 3.187866, 0)], [4, 1, 1, 1, 1, 1, 1, 1, 1, 1, 1, 1, 1, 1, 1, 1, 4], [0, 1.215430442, 2.370003584, 3.475209778, 4.53279855, 5.55522989, 6.548792651, 7.526809858, 8.505409025, 9.467826767, 10.404123909, 11.316848639, 12.227335424, 13.138360512, 14.065900994, 15.014765094, 16], False, 3, [1, 1, 1, 1, 1, 1, 1, 1, 1, 1, 1, 1, 1, 1, 1, 1, 1, 1, 1], False), False)
sketch4.addConstraint(Sketcher.Constraint("Block", 11))
sketch4.addConstraint(Sketcher.Constraint("Block", 12))
sketch4.addConstraint(Sketcher.Constraint("Block", 20))
sketch4.addConstraint(Sketcher.Constraint("Block", 21))
sketch4.addConstraint(Sketcher.Constraint("Block", 22))
sketch4.addConstraint(Sketcher.Constraint("Block", 23))
sketch4.addConstraint(Sketcher.Constraint("Block", 25))
sketch4.addConstraint(Sketcher.Constraint("Block", 26))
sketch4.addConstraint(Sketcher.Constraint("Block", 27))
sketch4.addConstraint(Sketcher.Constraint("Block", 28))
sketch4.addConstraint(Sketcher.Constraint("Block", 29))
sketch4.addConstraint(Sketcher.Constraint("Block", 30))
sketch4.addConstraint(Sketcher.Constraint("Block", 31))
sketch4.addConstraint(Sketcher.Constraint("Block", 32))
sketch4.addConstraint(Sketcher.Constraint("Block", 33))
sketch4.addConstraint(Sketcher.Constraint("Block", 34))
sketch4.addConstraint(Sketcher.Constraint("Block", 35))
sketch4.addConstraint(Sketcher.Constraint("Block", 36))
sketch4.addConstraint(Sketcher.Constraint("Coincident", 0, 2, 1, 1))
sketch4.addConstraint(Sketcher.Constraint("Coincident", 1, 2, 2, 1))
sketch4.addConstraint(Sketcher.Constraint("Coincident", 2, 2, 3, 1))
sketch4.addConstraint(Sketcher.Constraint("Coincident", 3, 2, 4, 1))
sketch4.addConstraint(Sketcher.Constraint("Coincident", 4, 2, 5, 1))
sketch4.addConstraint(Sketcher.Constraint("Coincident", 5, 2, 6, 1))
sketch4.addConstraint(Sketcher.Constraint("Coincident", 6, 2, 7, 1))
sketch4.addConstraint(Sketcher.Constraint("Coincident", 7, 2, 8, 1))
sketch4.addConstraint(Sketcher.Constraint("Coincident", 8, 2, 9, 1))
sketch4.addConstraint(Sketcher.Constraint("Coincident", 9, 2, 10, 1))
sketch4.addConstraint(Sketcher.Constraint("Coincident", 10, 2, 11, 2))
sketch4.addConstraint(Sketcher.Constraint("Coincident", 12, 1, 13, 1))
sketch4.addConstraint(Sketcher.Constraint("Coincident", 13, 2, 14, 1))
sketch4.addConstraint(Sketcher.Constraint("Coincident", 14, 2, 0, 1))
sketch4.addConstraint(Sketcher.Constraint("Coincident", 15, 2, 16, 1))
sketch4.addConstraint(Sketcher.Constraint("Coincident", 16, 2, 17, 1))
sketch4.addConstraint(Sketcher.Constraint("Coincident", 17, 2, 18, 1))
sketch4.addConstraint(Sketcher.Constraint("Coincident", 18, 2, 15, 1))
sketch4.addConstraint(Sketcher.Constraint("Coincident", 19, 2, 20, 2))
sketch4.addConstraint(Sketcher.Constraint("Coincident", 23, 1, 24, 1))
sketch4.addConstraint(Sketcher.Constraint("Coincident", 24, 2, 25, 2))
sketch4.addConstraint(Sketcher.Constraint("Coincident", 28, 1, 19, 1))
sketch4.addConstraint(Sketcher.Constraint("Horizontal", 0))
sketch4.addConstraint(Sketcher.Constraint("Vertical", 1))
sketch4.addConstraint(Sketcher.Constraint("Horizontal", 2))
sketch4.addConstraint(Sketcher.Constraint("Vertical", 4))
sketch4.addConstraint(Sketcher.Constraint("Horizontal", 6))
sketch4.addConstraint(Sketcher.Constraint("Vertical", 7))
sketch4.addConstraint(Sketcher.Constraint("Horizontal", 8))
sketch4.addConstraint(Sketcher.Constraint("Vertical", 9))
sketch4.addConstraint(Sketcher.Constraint("Vertical", 14))
sketch4.addConstraint(Sketcher.Constraint("Horizontal", 15))
sketch4.addConstraint(Sketcher.Constraint("Vertical", 16))
sketch4.addConstraint(Sketcher.Constraint("Horizontal", 17))
sketch4.addConstraint(Sketcher.Constraint("Vertical", 18))
sketch4.addConstraint(Sketcher.Constraint("Vertical", 1, 2, 3, 2))
sketch4.addConstraint(Sketcher.Constraint("Vertical", 2, 2, 5, 2))
sketch4.addConstraint(Sketcher.Constraint("Vertical", 4, 2, 6, 2))
sketch4.addConstraint(Sketcher.Constraint("Vertical", 9, 2, 13, 2))
sketch4.addConstraint(Sketcher.Constraint("Vertical", 7, 2, 15, 2))
sketch4.addConstraint(Sketcher.Constraint("Vertical", 14, 2, 17, 2))
sketch4.addConstraint(Sketcher.Constraint("Equal", 1, 7))
sketch4.addConstraint(Sketcher.Constraint("Equal", 7, 16))
sketch4.addConstraint(Sketcher.Constraint("DistanceX", 0, 2, 0, 1, 2.5))
sketch4.addConstraint(Sketcher.Constraint("DistanceY", 6, 2, 16, 2, 1.25))
sketch4.addConstraint(Sketcher.Constraint("DistanceY", 4, 1, 4, 2, 0.36859))
sketch4.addConstraint(Sketcher.Constraint("DistanceY", 9, 2, 9, 1, 0.525841))
sketch4.addConstraint(Sketcher.Constraint("DistanceY", 14, 2, 14, 1, 0.530349))
sketch4.addConstraint(Sketcher.Constraint("DistanceY", 10, 2, 15, 2, 1.624099))
sketch4.addConstraint(Sketcher.Constraint("Distance", 5, 2.218069))
sketch4.addConstraint(Sketcher.Constraint("DistanceX", 2, 1, 2, 2, 2.115385))
sketch4.addConstraint(Sketcher.Constraint("DistanceY", 1, 1, 1, 2, 0.352564))
sketch4.addConstraint(Sketcher.Constraint("DistanceX", -1, 1, 0, 2, 1.228618))
sketch4.addConstraint(Sketcher.Constraint("DistanceY", 0, 2, -1, 1, 4.246529))
pad2 = body.newObject("PartDesign::Pad", "Pad001")
pad2.Profile = sketch4
pad2.Length = 0.8
pad2.Reversed = True
doc.recompute()

fillet3 = body.newObject("PartDesign::Fillet", "Fillet002")
fillet3.Base = (pad2, edges_at(pad2, [(0, 5, 6), (0, 5, -6)]))
fillet3.Radius = 1.5

doc.recompute()
